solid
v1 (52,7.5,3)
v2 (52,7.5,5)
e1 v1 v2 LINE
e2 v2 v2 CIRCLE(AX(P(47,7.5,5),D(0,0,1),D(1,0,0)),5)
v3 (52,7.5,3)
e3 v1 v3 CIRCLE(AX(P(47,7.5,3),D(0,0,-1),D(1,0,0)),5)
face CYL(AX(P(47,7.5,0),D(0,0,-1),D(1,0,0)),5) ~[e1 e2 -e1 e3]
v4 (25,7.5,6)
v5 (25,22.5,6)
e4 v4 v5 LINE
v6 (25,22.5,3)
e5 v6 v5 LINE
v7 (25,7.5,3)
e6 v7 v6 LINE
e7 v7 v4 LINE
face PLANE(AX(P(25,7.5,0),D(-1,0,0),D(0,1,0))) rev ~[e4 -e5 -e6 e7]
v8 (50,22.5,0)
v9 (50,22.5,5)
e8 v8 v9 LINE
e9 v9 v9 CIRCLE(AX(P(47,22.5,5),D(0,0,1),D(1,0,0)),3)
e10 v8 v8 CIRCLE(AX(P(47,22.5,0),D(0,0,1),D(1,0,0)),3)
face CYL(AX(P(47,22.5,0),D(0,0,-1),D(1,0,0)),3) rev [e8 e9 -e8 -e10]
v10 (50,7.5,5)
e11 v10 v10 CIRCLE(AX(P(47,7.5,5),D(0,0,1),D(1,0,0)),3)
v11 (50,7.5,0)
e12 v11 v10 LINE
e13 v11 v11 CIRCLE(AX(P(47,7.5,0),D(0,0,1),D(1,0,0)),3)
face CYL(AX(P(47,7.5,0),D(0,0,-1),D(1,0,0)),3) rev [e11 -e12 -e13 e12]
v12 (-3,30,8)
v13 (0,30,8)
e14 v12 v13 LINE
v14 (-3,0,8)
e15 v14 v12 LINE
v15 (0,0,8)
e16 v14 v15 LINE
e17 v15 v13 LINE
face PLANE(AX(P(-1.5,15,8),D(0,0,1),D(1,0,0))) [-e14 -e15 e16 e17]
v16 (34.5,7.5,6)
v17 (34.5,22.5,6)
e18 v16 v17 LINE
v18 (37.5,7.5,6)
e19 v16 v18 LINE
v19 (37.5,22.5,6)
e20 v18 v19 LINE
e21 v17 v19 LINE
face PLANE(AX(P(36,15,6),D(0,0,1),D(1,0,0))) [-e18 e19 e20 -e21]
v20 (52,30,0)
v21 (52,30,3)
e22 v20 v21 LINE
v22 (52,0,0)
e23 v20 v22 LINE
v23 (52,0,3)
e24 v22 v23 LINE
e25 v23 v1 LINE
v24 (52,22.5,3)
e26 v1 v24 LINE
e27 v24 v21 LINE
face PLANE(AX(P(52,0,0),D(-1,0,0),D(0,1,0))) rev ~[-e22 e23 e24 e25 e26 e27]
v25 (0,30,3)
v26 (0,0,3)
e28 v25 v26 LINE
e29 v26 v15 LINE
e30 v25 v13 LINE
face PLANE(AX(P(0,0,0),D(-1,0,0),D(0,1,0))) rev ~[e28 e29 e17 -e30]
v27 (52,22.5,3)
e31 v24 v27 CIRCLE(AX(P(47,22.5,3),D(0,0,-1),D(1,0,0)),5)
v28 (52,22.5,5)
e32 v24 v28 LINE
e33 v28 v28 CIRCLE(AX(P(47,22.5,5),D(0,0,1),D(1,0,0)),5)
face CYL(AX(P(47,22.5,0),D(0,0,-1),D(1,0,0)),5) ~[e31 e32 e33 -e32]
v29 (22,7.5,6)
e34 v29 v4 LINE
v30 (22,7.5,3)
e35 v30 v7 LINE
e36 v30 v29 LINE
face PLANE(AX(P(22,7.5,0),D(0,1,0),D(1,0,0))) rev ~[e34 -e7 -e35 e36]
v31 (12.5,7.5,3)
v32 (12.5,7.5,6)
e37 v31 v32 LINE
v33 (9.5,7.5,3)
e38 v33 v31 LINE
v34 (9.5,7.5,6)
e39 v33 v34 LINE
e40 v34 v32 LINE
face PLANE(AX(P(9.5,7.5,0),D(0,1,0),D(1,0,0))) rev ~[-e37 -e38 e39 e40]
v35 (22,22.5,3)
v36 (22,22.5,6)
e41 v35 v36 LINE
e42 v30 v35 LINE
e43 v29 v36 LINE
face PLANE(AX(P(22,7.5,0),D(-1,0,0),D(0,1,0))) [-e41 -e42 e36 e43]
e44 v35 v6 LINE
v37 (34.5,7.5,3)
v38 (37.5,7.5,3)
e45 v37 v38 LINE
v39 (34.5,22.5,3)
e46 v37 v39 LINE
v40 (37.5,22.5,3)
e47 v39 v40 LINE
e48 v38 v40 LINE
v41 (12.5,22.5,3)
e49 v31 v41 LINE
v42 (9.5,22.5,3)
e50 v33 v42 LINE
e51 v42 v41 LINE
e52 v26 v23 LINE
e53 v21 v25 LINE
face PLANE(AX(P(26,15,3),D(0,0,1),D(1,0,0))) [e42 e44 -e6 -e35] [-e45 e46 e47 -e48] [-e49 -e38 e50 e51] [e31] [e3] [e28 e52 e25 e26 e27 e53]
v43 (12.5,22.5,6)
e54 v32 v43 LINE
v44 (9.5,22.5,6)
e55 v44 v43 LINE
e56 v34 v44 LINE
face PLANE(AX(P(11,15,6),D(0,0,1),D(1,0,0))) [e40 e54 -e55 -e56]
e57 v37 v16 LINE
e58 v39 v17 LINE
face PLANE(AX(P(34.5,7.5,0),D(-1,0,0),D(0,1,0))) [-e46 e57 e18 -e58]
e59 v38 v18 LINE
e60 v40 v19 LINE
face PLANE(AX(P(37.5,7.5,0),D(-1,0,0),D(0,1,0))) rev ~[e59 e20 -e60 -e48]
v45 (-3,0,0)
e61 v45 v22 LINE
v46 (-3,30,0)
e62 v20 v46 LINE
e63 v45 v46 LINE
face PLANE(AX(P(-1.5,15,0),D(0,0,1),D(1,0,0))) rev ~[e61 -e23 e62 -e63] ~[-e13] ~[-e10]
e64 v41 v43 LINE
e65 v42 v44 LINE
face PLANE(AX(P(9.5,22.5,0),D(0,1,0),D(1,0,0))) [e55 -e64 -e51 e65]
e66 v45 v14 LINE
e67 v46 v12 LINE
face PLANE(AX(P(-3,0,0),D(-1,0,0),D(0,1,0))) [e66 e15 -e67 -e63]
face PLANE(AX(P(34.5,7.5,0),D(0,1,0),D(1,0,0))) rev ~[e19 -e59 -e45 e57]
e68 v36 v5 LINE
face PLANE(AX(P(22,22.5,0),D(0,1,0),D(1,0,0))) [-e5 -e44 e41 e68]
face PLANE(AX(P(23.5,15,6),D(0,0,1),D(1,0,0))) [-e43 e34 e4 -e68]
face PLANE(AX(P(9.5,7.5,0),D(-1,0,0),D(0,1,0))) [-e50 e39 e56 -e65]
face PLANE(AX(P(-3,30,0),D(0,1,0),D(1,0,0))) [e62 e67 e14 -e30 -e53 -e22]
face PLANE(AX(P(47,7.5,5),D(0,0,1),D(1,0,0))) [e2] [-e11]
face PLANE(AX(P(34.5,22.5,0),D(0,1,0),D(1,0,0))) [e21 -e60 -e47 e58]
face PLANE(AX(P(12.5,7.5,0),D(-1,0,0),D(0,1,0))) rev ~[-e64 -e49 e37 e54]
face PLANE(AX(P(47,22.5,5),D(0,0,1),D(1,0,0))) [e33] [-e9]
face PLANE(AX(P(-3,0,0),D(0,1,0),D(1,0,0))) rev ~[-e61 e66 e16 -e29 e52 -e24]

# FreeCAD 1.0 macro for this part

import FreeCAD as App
import Part
import Sketcher

V = App.Vector

doc = App.newDocument("Part")
body = doc.addObject("PartDesign::Body", "Body")

# Sketch on XY plane
sketch1 = body.newObject("Sketcher::SketchObject", "Sketch")
sketch1.AttachmentSupport = (doc.getObject("XY_Plane"), [""])
sketch1.MapMode = "FlatFace"
sketch1.addGeometry([
    Part.LineSegment(V(0, 0, 0), V(52, 0, 0)),  # 0
    Part.LineSegment(V(52, 0, 0), V(52, 30, 0)),  # 1
    Part.LineSegment(V(52, 30, 0), V(0, 30, 0)),  # 2
    Part.LineSegment(V(0, 30, 0), V(0, 0, 0)),  # 3
    Part.Circle(V(47, 7.5, 0), V(0, 0, 1), 3),  # 4
    Part.LineSegment(V(12.5, 7.5, 0), V(9.5, 7.5, 0)),  # 5
    Part.LineSegment(V(9.5, 7.5, 0), V(9.5, 22.5, 0)),  # 6
    Part.LineSegment(V(9.5, 22.5, 0), V(12.5, 22.5, 0)),  # 7
    Part.LineSegment(V(12.5, 22.5, 0), V(12.5, 7.5, 0)),  # 8
    Part.LineSegment(V(25, 7.5, 0), V(22, 7.5, 0)),  # 9
    Part.LineSegment(V(22, 7.5, 0), V(22, 22.5, 0)),  # 10
    Part.LineSegment(V(22, 22.5, 0), V(25, 22.5, 0)),  # 11
    Part.LineSegment(V(25, 22.5, 0), V(25, 7.5, 0)),  # 12
    Part.LineSegment(V(37.5, 7.5, 0), V(34.5, 7.5, 0)),  # 13
    Part.LineSegment(V(34.5, 7.5, 0), V(34.5, 22.5, 0)),  # 14
    Part.LineSegment(V(34.5, 22.5, 0), V(37.5, 22.5, 0)),  # 15
    Part.LineSegment(V(37.5, 22.5, 0), V(37.5, 7.5, 0)),  # 16
    Part.Circle(V(47, 22.5, 0), V(0, 0, 1), 3),  # 17
], False)
sketch1.addConstraint([
    Sketcher.Constraint("Coincident", 0, 2, 1, 1),
    Sketcher.Constraint("Coincident", 1, 2, 2, 1),
    Sketcher.Constraint("Coincident", 2, 2, 3, 1),
    Sketcher.Constraint("Coincident", 3, 2, 0, 1),
    Sketcher.Constraint("Coincident", 5, 2, 6, 1),
    Sketcher.Constraint("Coincident", 6, 2, 7, 1),
    Sketcher.Constraint("Coincident", 7, 2, 8, 1),
    Sketcher.Constraint("Coincident", 8, 2, 5, 1),
    Sketcher.Constraint("Coincident", 9, 2, 10, 1),
    Sketcher.Constraint("Coincident", 10, 2, 11, 1),
    Sketcher.Constraint("Coincident", 11, 2, 12, 1),
    Sketcher.Constraint("Coincident", 12, 2, 9, 1),
    Sketcher.Constraint("Coincident", 13, 2, 14, 1),
    Sketcher.Constraint("Coincident", 14, 2, 15, 1),
    Sketcher.Constraint("Coincident", 15, 2, 16, 1),
    Sketcher.Constraint("Coincident", 16, 2, 13, 1),
    Sketcher.Constraint("Horizontal", 0),
    Sketcher.Constraint("Vertical", 1),
    Sketcher.Constraint("Horizontal", 2),
    Sketcher.Constraint("Vertical", 3),
    Sketcher.Constraint("Horizontal", 5),
    Sketcher.Constraint("Vertical", 6),
    Sketcher.Constraint("Horizontal", 7),
    Sketcher.Constraint("Vertical", 8),
    Sketcher.Constraint("Horizontal", 9),
    Sketcher.Constraint("Vertical", 10),
    Sketcher.Constraint("Horizontal", 11),
    Sketcher.Constraint("Vertical", 12),
    Sketcher.Constraint("Horizontal", 13),
    Sketcher.Constraint("Vertical", 14),
    Sketcher.Constraint("Horizontal", 15),
    Sketcher.Constraint("Vertical", 16),
    Sketcher.Constraint("Coincident", 3, 2, -1, 1),
    Sketcher.Constraint("Equal", 4, 17),
    Sketcher.Constraint("Horizontal", 4, 3, 5, 2),
    Sketcher.Constraint("Horizontal", 17, 3, 6, 2),
    Sketcher.Constraint("Horizontal", 8, 2, 9, 2),
    Sketcher.Constraint("Horizontal", 7, 2, 10, 2),
    Sketcher.Constraint("Horizontal", 12, 2, 13, 2),
    Sketcher.Constraint("Horizontal", 11, 2, 14, 2),
    Sketcher.Constraint("Vertical", 4, 3, 17, 3),
    Sketcher.Constraint("Equal", 7, 9),
    Sketcher.Constraint("Equal", 11, 13),
    Sketcher.Constraint("Diameter", 4, 6.0),
    Sketcher.Constraint("DistanceX", 0, 1, 0, 2, 52.0),
    Sketcher.Constraint("DistanceX", 5, 2, 5, 1, 3.0),
    Sketcher.Constraint("DistanceY", 1, 1, 1, 2, 30.0),
    Sketcher.Constraint("DistanceY", 6, 1, 6, 2, 15.0),
    Sketcher.Constraint("DistanceX", -1, 1, 4, 3, 47.0),
    Sketcher.Constraint("DistanceX", -1, 1, 9, 2, 22.0),
    Sketcher.Constraint("DistanceY", -1, 1, 4, 3, 7.5),
    Sketcher.Constraint("DistanceX", -1, 1, 5, 2, 9.5),
    Sketcher.Constraint("DistanceX", -1, 1, 13, 2, 34.5),
])
pad1 = body.newObject("PartDesign::Pad", "Pad")
pad1.Profile = sketch1
pad1.Length = 3

# Sketch on XY plane
sketch2 = body.newObject("Sketcher::SketchObject", "Sketch001")
sketch2.AttachmentSupport = (doc.getObject("XY_Plane"), [""])
sketch2.MapMode = "FlatFace"
sketch2.addGeometry([
    Part.LineSegment(V(-3, 30, 0), V(-3, 0, 0)),
    Part.LineSegment(V(-3, 0, 0), V(0, 0, 0)),
    Part.LineSegment(V(0, 0, 0), V(0, 30, 0)),
    Part.LineSegment(V(0, 30, 0), V(-3, 30, 0)),
], False)
sketch2.addConstraint([
    Sketcher.Constraint("Coincident", 0, 2, 1, 1),
    Sketcher.Constraint("Coincident", 1, 2, 2, 1),
    Sketcher.Constraint("Coincident", 2, 2, 3, 1),
    Sketcher.Constraint("Coincident", 3, 2, 0, 1),
    Sketcher.Constraint("Vertical", 0),
    Sketcher.Constraint("Horizontal", 1),
    Sketcher.Constraint("Vertical", 2),
    Sketcher.Constraint("Horizontal", 3),
    Sketcher.Constraint("Coincident", 1, 2, -1, 1),
    Sketcher.Constraint("DistanceX", 1, 1, 1, 2, 3.0),
    Sketcher.Constraint("DistanceY", 0, 2, 0, 1, 30.0),
])
pad2 = body.newObject("PartDesign::Pad", "Pad001")
pad2.Profile = sketch2
pad2.Length = 8

# Sketch on XY plane
sketch3 = body.newObject("Sketcher::SketchObject", "Sketch002")
sketch3.AttachmentSupport = (doc.getObject("XY_Plane"), [""])
sketch3.MapMode = "FlatFace"
sketch3.addGeometry([
    Part.LineSegment(V(9.5, 22.5, 0), V(9.5, 7.5, 0)),  # 0
    Part.LineSegment(V(9.5, 7.5, 0), V(12.5, 7.5, 0)),  # 1
    Part.LineSegment(V(12.5, 7.5, 0), V(12.5, 22.5, 0)),  # 2
    Part.LineSegment(V(12.5, 22.5, 0), V(9.5, 22.5, 0)),  # 3
    Part.LineSegment(V(22, 22.5, 0), V(22, 7.5, 0)),  # 4
    Part.LineSegment(V(22, 7.5, 0), V(25, 7.5, 0)),  # 5
    Part.LineSegment(V(25, 7.5, 0), V(25, 22.5, 0)),  # 6
    Part.LineSegment(V(25, 22.5, 0), V(22, 22.5, 0)),  # 7
    Part.LineSegment(V(34.5, 22.5, 0), V(34.5, 7.5, 0)),  # 8
    Part.LineSegment(V(34.5, 7.5, 0), V(37.5, 7.5, 0)),  # 9
    Part.LineSegment(V(37.5, 7.5, 0), V(37.5, 22.5, 0)),  # 10
    Part.LineSegment(V(37.5, 22.5, 0), V(34.5, 22.5, 0)),  # 11
], False)
sketch3.addConstraint([
    Sketcher.Constraint("Coincident", 0, 2, 1, 1),
    Sketcher.Constraint("Coincident", 1, 2, 2, 1),
    Sketcher.Constraint("Coincident", 2, 2, 3, 1),
    Sketcher.Constraint("Coincident", 3, 2, 0, 1),
    Sketcher.Constraint("Coincident", 4, 2, 5, 1),
    Sketcher.Constraint("Coincident", 5, 2, 6, 1),
    Sketcher.Constraint("Coincident", 6, 2, 7, 1),
    Sketcher.Constraint("Coincident", 7, 2, 4, 1),
    Sketcher.Constraint("Coincident", 8, 2, 9, 1),
    Sketcher.Constraint("Coincident", 9, 2, 10, 1),
    Sketcher.Constraint("Coincident", 10, 2, 11, 1),
    Sketcher.Constraint("Coincident", 11, 2, 8, 1),
    Sketcher.Constraint("Vertical", 0),
    Sketcher.Constraint("Horizontal", 1),
    Sketcher.Constraint("Vertical", 2),
    Sketcher.Constraint("Horizontal", 3),
    Sketcher.Constraint("Vertical", 4),
    Sketcher.Constraint("Horizontal", 5),
    Sketcher.Constraint("Vertical", 6),
    Sketcher.Constraint("Horizontal", 7),
    Sketcher.Constraint("Vertical", 8),
    Sketcher.Constraint("Horizontal", 9),
    Sketcher.Constraint("Vertical", 10),
    Sketcher.Constraint("Horizontal", 11),
    Sketcher.Constraint("Horizontal", 1, 2, 4, 2),
    Sketcher.Constraint("Horizontal", 3, 2, 6, 2),
    Sketcher.Constraint("Horizontal", 5, 2, 8, 2),
    Sketcher.Constraint("Horizontal", 7, 2, 10, 2),
    Sketcher.Constraint("Equal", 3, 5),
    Sketcher.Constraint("Equal", 7, 9),
    Sketcher.Constraint("DistanceX", 1, 1, 1, 2, 3.0),
    Sketcher.Constraint("DistanceY", 0, 2, 0, 1, 15.0),
    Sketcher.Constraint("DistanceX", -1, 1, 4, 2, 22.0),
    Sketcher.Constraint("DistanceX", 1, 2, 8, 2, 22.0),
    Sketcher.Constraint("DistanceX", -1, 1, 0, 2, 9.5),
    Sketcher.Constraint("DistanceY", -1, 1, 0, 2, 7.5),
])
pad3 = body.newObject("PartDesign::Pad", "Pad002")
pad3.Profile = sketch3
pad3.Length = 6

# Sketch on XY plane
sketch4 = body.newObject("Sketcher::SketchObject", "Sketch003")
sketch4.AttachmentSupport = (doc.getObject("XY_Plane"), [""])
sketch4.MapMode = "FlatFace"
sketch4.addGeometry([
    Part.Circle(V(47, 22.5, 0), V(0, 0, 1), 5),
    Part.Circle(V(47, 22.5, 0), V(0, 0, 1), 3),
    Part.Circle(V(47, 7.5, 0), V(0, 0, 1), 5),
    Part.Circle(V(47, 7.5, 0), V(0, 0, 1), 3),
], False)
sketch4.addConstraint([
    Sketcher.Constraint("Coincident", 1, 3, 0, 3),
    Sketcher.Constraint("Coincident", 3, 3, 2, 3),
    Sketcher.Constraint("Equal", 0, 2),
    Sketcher.Constraint("Equal", 1, 3),
    Sketcher.Constraint("Vertical", 1, 3, 2, 3),
    Sketcher.Constraint("Diameter", 0, 10.0),
    Sketcher.Constraint("Diameter", 1, 6.0),
    Sketcher.Constraint("DistanceX", -1, 1, 0, 3, 47.0),
    Sketcher.Constraint("DistanceY", 2, 3, 0, 3, 15.0),
    Sketcher.Constraint("DistanceY", -1, 1, 0, 3, 22.5),
])
pad4 = body.newObject("PartDesign::Pad", "Pad003")
pad4.Profile = sketch4
pad4.Length = 5

doc.recompute()
